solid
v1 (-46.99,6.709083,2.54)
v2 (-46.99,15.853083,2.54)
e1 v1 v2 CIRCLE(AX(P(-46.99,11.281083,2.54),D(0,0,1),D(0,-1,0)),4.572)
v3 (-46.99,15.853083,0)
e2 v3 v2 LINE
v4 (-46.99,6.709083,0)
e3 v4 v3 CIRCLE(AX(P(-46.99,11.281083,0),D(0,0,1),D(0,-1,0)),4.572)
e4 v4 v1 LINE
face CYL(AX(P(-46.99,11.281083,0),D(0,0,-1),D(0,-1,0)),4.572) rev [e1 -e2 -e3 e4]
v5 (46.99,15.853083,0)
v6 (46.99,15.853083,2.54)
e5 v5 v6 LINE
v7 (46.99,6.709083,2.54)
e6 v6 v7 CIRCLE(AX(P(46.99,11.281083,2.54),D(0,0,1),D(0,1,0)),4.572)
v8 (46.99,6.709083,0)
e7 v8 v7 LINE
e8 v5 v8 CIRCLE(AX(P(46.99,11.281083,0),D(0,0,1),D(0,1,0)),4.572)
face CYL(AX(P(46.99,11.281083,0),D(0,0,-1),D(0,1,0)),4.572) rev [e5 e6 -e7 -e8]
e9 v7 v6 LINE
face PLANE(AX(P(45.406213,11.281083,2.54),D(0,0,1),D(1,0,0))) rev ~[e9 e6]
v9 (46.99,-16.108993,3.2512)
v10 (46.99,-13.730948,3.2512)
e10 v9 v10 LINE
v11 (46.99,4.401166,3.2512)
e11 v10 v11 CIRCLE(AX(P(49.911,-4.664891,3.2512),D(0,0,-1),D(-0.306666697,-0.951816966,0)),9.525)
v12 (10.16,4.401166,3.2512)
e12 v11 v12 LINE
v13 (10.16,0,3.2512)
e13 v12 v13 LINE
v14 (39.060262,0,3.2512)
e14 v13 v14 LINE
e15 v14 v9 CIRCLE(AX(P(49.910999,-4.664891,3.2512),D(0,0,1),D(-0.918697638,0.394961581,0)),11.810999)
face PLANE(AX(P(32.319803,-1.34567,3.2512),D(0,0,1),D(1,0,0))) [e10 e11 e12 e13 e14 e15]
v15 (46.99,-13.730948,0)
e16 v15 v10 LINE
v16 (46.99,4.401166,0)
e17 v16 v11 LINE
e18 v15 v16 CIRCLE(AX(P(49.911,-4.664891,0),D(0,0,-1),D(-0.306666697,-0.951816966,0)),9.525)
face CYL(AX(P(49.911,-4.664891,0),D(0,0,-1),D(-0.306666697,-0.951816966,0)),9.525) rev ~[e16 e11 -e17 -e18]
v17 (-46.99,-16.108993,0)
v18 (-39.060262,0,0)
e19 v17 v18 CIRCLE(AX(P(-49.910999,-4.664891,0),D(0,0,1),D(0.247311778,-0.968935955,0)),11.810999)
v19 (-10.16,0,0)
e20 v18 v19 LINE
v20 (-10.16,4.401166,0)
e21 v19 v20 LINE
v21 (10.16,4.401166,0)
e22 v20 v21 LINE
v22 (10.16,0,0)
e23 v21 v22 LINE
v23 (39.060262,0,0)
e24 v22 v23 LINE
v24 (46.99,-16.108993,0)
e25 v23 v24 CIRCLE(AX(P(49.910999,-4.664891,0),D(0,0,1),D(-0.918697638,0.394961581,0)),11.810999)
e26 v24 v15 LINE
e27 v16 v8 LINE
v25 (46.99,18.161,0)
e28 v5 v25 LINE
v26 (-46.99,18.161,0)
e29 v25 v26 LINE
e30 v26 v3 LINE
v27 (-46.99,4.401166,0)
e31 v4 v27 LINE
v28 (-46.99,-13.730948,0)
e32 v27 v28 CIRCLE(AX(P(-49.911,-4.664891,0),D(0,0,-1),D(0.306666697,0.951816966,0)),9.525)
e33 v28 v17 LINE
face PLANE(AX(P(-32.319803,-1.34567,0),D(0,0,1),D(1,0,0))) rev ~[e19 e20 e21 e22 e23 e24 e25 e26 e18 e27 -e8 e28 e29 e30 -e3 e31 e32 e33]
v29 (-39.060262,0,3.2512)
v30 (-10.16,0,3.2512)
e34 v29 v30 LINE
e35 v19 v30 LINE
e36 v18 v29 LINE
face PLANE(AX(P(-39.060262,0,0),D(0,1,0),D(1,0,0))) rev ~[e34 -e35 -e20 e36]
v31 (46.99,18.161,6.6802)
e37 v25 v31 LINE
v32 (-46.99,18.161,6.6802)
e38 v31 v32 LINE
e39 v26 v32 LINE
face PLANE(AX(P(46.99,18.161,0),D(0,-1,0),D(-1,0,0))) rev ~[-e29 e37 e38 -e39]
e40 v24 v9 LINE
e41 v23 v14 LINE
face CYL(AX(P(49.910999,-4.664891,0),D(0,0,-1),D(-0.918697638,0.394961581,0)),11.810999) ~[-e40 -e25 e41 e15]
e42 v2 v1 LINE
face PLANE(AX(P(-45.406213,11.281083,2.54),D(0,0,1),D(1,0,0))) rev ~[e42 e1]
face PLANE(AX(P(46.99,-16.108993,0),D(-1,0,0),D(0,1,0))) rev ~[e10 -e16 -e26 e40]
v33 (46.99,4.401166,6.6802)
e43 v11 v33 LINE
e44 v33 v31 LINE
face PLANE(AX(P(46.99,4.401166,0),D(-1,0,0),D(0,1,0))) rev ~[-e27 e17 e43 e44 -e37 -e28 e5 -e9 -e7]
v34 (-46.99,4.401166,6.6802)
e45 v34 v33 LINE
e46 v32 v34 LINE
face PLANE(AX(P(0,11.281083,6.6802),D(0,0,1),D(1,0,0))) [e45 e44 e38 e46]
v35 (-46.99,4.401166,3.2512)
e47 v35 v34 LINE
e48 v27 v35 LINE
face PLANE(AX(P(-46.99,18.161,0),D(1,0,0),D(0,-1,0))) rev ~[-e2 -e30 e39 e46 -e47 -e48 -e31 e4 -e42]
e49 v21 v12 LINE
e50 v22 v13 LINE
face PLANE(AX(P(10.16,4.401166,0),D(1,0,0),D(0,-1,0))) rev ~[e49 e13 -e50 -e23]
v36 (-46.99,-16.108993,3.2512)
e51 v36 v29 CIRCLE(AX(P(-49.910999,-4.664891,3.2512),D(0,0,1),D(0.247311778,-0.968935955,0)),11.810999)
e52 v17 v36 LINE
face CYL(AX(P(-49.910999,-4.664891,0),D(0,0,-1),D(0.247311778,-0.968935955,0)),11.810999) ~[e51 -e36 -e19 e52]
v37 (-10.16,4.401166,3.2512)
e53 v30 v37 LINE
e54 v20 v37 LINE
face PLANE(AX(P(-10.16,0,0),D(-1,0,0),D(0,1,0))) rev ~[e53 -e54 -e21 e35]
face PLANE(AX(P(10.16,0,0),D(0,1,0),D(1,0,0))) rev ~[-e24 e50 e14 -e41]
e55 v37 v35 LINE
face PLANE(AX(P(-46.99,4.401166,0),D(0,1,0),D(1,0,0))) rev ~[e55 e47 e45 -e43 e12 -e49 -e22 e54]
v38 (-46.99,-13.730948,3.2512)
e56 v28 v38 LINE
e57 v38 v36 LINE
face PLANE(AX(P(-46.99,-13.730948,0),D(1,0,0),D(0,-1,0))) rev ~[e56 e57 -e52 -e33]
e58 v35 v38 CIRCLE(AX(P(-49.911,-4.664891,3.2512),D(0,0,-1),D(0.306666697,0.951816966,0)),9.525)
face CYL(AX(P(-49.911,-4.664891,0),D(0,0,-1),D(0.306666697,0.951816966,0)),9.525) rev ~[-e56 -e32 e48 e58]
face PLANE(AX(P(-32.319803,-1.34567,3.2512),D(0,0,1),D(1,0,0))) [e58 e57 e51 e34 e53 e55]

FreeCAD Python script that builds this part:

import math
import FreeCAD as App
import Part
import Sketcher

V = App.Vector
Q = App.Units.Quantity

doc = App.newDocument("Part")
params = doc.addObject("Spreadsheet::Sheet", "Params")
for row, (alias, value) in enumerate([
    ("sketch1_width", "3.7 in"),
    ("pad1_length", "0.263 in"),
    ("sketch2_radius", "0.375 in"),
    ("sketch2_radius2", "0.465 in"),
    ("sketch2_width", "1.45 in"),
    ("pad2_length", "0.128 in"),
    ("sketch3_radius", "0.18 in"),
    ("pocket1_length", "0.1 in"),
], start=1):
    params.set(f"A{row}", alias)
    params.set(f"B{row}", "=" + value)
    params.setAlias(f"B{row}", alias)

body = doc.addObject("PartDesign::Body", "Body")

# Sketch on XY plane
sketch1 = body.newObject("Sketcher::SketchObject", "Sketch")
sketch1.AttachmentSupport = (doc.getObject("XY_Plane"), [""])
sketch1.MapMode = "FlatFace"
sketch1.addGeometry([
    Part.LineSegment(V(46.99, 18.161, 0), V(-46.99, 18.161, 0)),
    Part.LineSegment(V(-46.99, 18.161, 0), V(-46.99, 4.401166, 0)),
    Part.LineSegment(V(-46.99, 4.401166, 0), V(46.99, 4.401166, 0)),
    Part.LineSegment(V(46.99, 4.401166, 0), V(46.99, 18.161, 0)),
], False)
sketch1.addConstraint([
    Sketcher.Constraint("Coincident", 0, 2, 1, 1),
    Sketcher.Constraint("Coincident", 1, 2, 2, 1),
    Sketcher.Constraint("Coincident", 2, 2, 3, 1),
    Sketcher.Constraint("Coincident", 3, 2, 0, 1),
    Sketcher.Constraint("Horizontal", 0),
    Sketcher.Constraint("Vertical", 1),
    Sketcher.Constraint("Horizontal", 2),
    Sketcher.Constraint("Vertical", 3),
    Sketcher.Constraint("DistanceX", 0, 2, 0, 1, Q("3.7 in")),
    Sketcher.Constraint("DistanceX", 0, 2, -1, 1, Q("1.85 in")),
    Sketcher.Constraint("DistanceY", -1, 1, 0, 2, Q("0.715 in")),
    Sketcher.Constraint("DistanceY", 1, 2, 1, 1, 13.759834),
])
sketch1.setExpression("Constraints[8]", "Params.sketch1_width")
pad1 = body.newObject("PartDesign::Pad", "Pad")
pad1.Profile = sketch1
pad1.setExpression("Length", "Params.pad1_length")

# Sketch on XY plane
sketch2 = body.newObject("Sketcher::SketchObject", "Sketch001")
sketch2.AttachmentSupport = (doc.getObject("XY_Plane"), [""])
sketch2.MapMode = "FlatFace"
sketch2.addGeometry([
    Part.LineSegment(V(-10.16, 4.401166, 0), V(-46.99, 4.401166, 0)),  # 0
    Part.ArcOfCircle(Part.Circle(V(-49.911, -4.664891, 0), V(0, 0, 1), 9.525), math.radians(-72.141535), math.radians(72.141535)),  # 1
    Part.LineSegment(V(-46.99, -13.730948, 0), V(-46.99, -16.108993, 0)),  # 2
    Part.ArcOfCircle(Part.Circle(V(-49.910999, -4.664891, 0), V(0, 0, 1), 11.810999), math.radians(-75.681506), math.radians(23.263578)),  # 3
    Part.LineSegment(V(-39.060262, 0, 0), V(-10.16, 0, 0)),  # 4
    Part.LineSegment(V(-10.16, 0, 0), V(-10.16, 4.401166, 0)),  # 5
    Part.ArcOfCircle(Part.Circle(V(49.911, -4.664891, 0), V(0, 0, 1), 9.525), math.radians(107.858465), math.radians(252.141535)),  # 6
    Part.LineSegment(V(46.99, 4.401166, 0), V(10.16, 4.401166, 0)),  # 7
    Part.LineSegment(V(10.16, 4.401166, 0), V(10.16, 0, 0)),  # 8
    Part.LineSegment(V(10.16, 0, 0), V(39.060262, 0, 0)),  # 9
    Part.ArcOfCircle(Part.Circle(V(49.910999, -4.664891, 0), V(0, 0, 1), 11.810999), math.radians(156.736422), math.radians(255.681506)),  # 10
    Part.LineSegment(V(46.99, -16.108993, 0), V(46.99, -13.730948, 0)),  # 11
], False)
sketch2.addConstraint([
    Sketcher.Constraint("Coincident", 0, 2, 1, 2),
    Sketcher.Constraint("Coincident", 1, 1, 2, 1),
    Sketcher.Constraint("Coincident", 2, 2, 3, 1),
    Sketcher.Constraint("Coincident", 3, 2, 4, 1),
    Sketcher.Constraint("Coincident", 4, 2, 5, 1),
    Sketcher.Constraint("Coincident", 5, 2, 0, 1),
    Sketcher.Constraint("Coincident", 6, 1, 7, 1),
    Sketcher.Constraint("Coincident", 7, 2, 8, 1),
    Sketcher.Constraint("Coincident", 8, 2, 9, 1),
    Sketcher.Constraint("Coincident", 9, 2, 10, 1),
    Sketcher.Constraint("Coincident", 10, 2, 11, 1),
    Sketcher.Constraint("Coincident", 11, 2, 6, 2),
    Sketcher.Constraint("Horizontal", 0),
    Sketcher.Constraint("Vertical", 2),
    Sketcher.Constraint("Horizontal", 4),
    Sketcher.Constraint("Vertical", 5),
    Sketcher.Constraint("Horizontal", 7),
    Sketcher.Constraint("Vertical", 8),
    Sketcher.Constraint("Horizontal", 9),
    Sketcher.Constraint("Vertical", 11),
    Sketcher.Constraint("Coincident", 3, 3, 1, 3),
    Sketcher.Constraint("Coincident", 10, 3, 6, 3),
    Sketcher.Constraint("Equal", 1, 6),
    Sketcher.Constraint("Equal", 3, 10),
    Sketcher.Constraint("Symmetric", 4, 2, 8, 2, -1, 1),
    Sketcher.Constraint("Symmetric", 1, 3, 6, 3, -2),
    Sketcher.Constraint("PointOnObject", 3, 2, -1),
    Sketcher.Constraint("Horizontal", 5, 2, 6, 1),
    Sketcher.Constraint("Horizontal", 2, 2, 10, 2),
    Sketcher.Constraint("Vertical", 0, 2, 1, 1),
    Sketcher.Constraint("Radius", 1, Q("0.375 in")),
    Sketcher.Constraint("Radius", 3, Q("0.465 in")),
    Sketcher.Constraint("DistanceX", 0, 2, 0, 1, Q("1.45 in")),
    Sketcher.Constraint("DistanceX", 4, 2, -1, 1, Q("0.4 in")),
    Sketcher.Constraint("DistanceX", 3, 3, 6, 3, Q("3.93 in")),
    Sketcher.Constraint("DistanceX", 4, 1, 4, 2, 28.900262),
])
sketch2.setExpression("Constraints[30]", "Params.sketch2_radius")
sketch2.setExpression("Constraints[31]", "Params.sketch2_radius2")
sketch2.setExpression("Constraints[32]", "Params.sketch2_width")
pad2 = body.newObject("PartDesign::Pad", "Pad001")
pad2.Profile = sketch2
pad2.setExpression("Length", "Params.pad2_length")

# Sketch on XY plane
sketch3 = body.newObject("Sketcher::SketchObject", "Sketch002")
sketch3.AttachmentSupport = (doc.getObject("XY_Plane"), [""])
sketch3.MapMode = "FlatFace"
sketch3.addGeometry([
    Part.LineSegment(V(-46.99, 15.853083, 0), V(-46.99, 6.709083, 0)),
    Part.ArcOfCircle(Part.Circle(V(-46.99, 11.281083, 0), V(0, 0, 1), 4.572), math.radians(-90), math.radians(90)),
    Part.ArcOfCircle(Part.Circle(V(46.99, 11.281083, 0), V(0, 0, 1), 4.572), math.radians(90), math.radians(270)),
    Part.LineSegment(V(46.99, 6.709083, 0), V(46.99, 15.853083, 0)),
], False)
sketch3.addConstraint([
    Sketcher.Constraint("Coincident", 0, 1, 1, 2),
    Sketcher.Constraint("Coincident", 1, 1, 0, 2),
    Sketcher.Constraint("Coincident", 2, 1, 3, 2),
    Sketcher.Constraint("Coincident", 3, 1, 2, 2),
    Sketcher.Constraint("Vertical", 0),
    Sketcher.Constraint("Vertical", 3),
    Sketcher.Constraint("Equal", 1, 2),
    Sketcher.Constraint("Symmetric", 1, 3, 2, 3, -2),
    Sketcher.Constraint("Vertical", 1, 3, 0, 1),
    Sketcher.Constraint("Radius", 1, Q("0.18 in")),
    Sketcher.Constraint("DistanceX", 1, 3, 2, 3, Q("3.7 in")),
    Sketcher.Constraint("DistanceX", 0, 1, 2, 1, Q("3.7 in")),
    Sketcher.Constraint("DistanceY", -1, 1, 1, 3, 11.281083),
])
sketch3.setExpression("Constraints[9]", "Params.sketch3_radius")
pocket1 = body.newObject("PartDesign::Pocket", "Pocket")
pocket1.Profile = sketch3
pocket1.setExpression("Length", "Params.pocket1_length")
pocket1.Reversed = True

doc.recompute()
